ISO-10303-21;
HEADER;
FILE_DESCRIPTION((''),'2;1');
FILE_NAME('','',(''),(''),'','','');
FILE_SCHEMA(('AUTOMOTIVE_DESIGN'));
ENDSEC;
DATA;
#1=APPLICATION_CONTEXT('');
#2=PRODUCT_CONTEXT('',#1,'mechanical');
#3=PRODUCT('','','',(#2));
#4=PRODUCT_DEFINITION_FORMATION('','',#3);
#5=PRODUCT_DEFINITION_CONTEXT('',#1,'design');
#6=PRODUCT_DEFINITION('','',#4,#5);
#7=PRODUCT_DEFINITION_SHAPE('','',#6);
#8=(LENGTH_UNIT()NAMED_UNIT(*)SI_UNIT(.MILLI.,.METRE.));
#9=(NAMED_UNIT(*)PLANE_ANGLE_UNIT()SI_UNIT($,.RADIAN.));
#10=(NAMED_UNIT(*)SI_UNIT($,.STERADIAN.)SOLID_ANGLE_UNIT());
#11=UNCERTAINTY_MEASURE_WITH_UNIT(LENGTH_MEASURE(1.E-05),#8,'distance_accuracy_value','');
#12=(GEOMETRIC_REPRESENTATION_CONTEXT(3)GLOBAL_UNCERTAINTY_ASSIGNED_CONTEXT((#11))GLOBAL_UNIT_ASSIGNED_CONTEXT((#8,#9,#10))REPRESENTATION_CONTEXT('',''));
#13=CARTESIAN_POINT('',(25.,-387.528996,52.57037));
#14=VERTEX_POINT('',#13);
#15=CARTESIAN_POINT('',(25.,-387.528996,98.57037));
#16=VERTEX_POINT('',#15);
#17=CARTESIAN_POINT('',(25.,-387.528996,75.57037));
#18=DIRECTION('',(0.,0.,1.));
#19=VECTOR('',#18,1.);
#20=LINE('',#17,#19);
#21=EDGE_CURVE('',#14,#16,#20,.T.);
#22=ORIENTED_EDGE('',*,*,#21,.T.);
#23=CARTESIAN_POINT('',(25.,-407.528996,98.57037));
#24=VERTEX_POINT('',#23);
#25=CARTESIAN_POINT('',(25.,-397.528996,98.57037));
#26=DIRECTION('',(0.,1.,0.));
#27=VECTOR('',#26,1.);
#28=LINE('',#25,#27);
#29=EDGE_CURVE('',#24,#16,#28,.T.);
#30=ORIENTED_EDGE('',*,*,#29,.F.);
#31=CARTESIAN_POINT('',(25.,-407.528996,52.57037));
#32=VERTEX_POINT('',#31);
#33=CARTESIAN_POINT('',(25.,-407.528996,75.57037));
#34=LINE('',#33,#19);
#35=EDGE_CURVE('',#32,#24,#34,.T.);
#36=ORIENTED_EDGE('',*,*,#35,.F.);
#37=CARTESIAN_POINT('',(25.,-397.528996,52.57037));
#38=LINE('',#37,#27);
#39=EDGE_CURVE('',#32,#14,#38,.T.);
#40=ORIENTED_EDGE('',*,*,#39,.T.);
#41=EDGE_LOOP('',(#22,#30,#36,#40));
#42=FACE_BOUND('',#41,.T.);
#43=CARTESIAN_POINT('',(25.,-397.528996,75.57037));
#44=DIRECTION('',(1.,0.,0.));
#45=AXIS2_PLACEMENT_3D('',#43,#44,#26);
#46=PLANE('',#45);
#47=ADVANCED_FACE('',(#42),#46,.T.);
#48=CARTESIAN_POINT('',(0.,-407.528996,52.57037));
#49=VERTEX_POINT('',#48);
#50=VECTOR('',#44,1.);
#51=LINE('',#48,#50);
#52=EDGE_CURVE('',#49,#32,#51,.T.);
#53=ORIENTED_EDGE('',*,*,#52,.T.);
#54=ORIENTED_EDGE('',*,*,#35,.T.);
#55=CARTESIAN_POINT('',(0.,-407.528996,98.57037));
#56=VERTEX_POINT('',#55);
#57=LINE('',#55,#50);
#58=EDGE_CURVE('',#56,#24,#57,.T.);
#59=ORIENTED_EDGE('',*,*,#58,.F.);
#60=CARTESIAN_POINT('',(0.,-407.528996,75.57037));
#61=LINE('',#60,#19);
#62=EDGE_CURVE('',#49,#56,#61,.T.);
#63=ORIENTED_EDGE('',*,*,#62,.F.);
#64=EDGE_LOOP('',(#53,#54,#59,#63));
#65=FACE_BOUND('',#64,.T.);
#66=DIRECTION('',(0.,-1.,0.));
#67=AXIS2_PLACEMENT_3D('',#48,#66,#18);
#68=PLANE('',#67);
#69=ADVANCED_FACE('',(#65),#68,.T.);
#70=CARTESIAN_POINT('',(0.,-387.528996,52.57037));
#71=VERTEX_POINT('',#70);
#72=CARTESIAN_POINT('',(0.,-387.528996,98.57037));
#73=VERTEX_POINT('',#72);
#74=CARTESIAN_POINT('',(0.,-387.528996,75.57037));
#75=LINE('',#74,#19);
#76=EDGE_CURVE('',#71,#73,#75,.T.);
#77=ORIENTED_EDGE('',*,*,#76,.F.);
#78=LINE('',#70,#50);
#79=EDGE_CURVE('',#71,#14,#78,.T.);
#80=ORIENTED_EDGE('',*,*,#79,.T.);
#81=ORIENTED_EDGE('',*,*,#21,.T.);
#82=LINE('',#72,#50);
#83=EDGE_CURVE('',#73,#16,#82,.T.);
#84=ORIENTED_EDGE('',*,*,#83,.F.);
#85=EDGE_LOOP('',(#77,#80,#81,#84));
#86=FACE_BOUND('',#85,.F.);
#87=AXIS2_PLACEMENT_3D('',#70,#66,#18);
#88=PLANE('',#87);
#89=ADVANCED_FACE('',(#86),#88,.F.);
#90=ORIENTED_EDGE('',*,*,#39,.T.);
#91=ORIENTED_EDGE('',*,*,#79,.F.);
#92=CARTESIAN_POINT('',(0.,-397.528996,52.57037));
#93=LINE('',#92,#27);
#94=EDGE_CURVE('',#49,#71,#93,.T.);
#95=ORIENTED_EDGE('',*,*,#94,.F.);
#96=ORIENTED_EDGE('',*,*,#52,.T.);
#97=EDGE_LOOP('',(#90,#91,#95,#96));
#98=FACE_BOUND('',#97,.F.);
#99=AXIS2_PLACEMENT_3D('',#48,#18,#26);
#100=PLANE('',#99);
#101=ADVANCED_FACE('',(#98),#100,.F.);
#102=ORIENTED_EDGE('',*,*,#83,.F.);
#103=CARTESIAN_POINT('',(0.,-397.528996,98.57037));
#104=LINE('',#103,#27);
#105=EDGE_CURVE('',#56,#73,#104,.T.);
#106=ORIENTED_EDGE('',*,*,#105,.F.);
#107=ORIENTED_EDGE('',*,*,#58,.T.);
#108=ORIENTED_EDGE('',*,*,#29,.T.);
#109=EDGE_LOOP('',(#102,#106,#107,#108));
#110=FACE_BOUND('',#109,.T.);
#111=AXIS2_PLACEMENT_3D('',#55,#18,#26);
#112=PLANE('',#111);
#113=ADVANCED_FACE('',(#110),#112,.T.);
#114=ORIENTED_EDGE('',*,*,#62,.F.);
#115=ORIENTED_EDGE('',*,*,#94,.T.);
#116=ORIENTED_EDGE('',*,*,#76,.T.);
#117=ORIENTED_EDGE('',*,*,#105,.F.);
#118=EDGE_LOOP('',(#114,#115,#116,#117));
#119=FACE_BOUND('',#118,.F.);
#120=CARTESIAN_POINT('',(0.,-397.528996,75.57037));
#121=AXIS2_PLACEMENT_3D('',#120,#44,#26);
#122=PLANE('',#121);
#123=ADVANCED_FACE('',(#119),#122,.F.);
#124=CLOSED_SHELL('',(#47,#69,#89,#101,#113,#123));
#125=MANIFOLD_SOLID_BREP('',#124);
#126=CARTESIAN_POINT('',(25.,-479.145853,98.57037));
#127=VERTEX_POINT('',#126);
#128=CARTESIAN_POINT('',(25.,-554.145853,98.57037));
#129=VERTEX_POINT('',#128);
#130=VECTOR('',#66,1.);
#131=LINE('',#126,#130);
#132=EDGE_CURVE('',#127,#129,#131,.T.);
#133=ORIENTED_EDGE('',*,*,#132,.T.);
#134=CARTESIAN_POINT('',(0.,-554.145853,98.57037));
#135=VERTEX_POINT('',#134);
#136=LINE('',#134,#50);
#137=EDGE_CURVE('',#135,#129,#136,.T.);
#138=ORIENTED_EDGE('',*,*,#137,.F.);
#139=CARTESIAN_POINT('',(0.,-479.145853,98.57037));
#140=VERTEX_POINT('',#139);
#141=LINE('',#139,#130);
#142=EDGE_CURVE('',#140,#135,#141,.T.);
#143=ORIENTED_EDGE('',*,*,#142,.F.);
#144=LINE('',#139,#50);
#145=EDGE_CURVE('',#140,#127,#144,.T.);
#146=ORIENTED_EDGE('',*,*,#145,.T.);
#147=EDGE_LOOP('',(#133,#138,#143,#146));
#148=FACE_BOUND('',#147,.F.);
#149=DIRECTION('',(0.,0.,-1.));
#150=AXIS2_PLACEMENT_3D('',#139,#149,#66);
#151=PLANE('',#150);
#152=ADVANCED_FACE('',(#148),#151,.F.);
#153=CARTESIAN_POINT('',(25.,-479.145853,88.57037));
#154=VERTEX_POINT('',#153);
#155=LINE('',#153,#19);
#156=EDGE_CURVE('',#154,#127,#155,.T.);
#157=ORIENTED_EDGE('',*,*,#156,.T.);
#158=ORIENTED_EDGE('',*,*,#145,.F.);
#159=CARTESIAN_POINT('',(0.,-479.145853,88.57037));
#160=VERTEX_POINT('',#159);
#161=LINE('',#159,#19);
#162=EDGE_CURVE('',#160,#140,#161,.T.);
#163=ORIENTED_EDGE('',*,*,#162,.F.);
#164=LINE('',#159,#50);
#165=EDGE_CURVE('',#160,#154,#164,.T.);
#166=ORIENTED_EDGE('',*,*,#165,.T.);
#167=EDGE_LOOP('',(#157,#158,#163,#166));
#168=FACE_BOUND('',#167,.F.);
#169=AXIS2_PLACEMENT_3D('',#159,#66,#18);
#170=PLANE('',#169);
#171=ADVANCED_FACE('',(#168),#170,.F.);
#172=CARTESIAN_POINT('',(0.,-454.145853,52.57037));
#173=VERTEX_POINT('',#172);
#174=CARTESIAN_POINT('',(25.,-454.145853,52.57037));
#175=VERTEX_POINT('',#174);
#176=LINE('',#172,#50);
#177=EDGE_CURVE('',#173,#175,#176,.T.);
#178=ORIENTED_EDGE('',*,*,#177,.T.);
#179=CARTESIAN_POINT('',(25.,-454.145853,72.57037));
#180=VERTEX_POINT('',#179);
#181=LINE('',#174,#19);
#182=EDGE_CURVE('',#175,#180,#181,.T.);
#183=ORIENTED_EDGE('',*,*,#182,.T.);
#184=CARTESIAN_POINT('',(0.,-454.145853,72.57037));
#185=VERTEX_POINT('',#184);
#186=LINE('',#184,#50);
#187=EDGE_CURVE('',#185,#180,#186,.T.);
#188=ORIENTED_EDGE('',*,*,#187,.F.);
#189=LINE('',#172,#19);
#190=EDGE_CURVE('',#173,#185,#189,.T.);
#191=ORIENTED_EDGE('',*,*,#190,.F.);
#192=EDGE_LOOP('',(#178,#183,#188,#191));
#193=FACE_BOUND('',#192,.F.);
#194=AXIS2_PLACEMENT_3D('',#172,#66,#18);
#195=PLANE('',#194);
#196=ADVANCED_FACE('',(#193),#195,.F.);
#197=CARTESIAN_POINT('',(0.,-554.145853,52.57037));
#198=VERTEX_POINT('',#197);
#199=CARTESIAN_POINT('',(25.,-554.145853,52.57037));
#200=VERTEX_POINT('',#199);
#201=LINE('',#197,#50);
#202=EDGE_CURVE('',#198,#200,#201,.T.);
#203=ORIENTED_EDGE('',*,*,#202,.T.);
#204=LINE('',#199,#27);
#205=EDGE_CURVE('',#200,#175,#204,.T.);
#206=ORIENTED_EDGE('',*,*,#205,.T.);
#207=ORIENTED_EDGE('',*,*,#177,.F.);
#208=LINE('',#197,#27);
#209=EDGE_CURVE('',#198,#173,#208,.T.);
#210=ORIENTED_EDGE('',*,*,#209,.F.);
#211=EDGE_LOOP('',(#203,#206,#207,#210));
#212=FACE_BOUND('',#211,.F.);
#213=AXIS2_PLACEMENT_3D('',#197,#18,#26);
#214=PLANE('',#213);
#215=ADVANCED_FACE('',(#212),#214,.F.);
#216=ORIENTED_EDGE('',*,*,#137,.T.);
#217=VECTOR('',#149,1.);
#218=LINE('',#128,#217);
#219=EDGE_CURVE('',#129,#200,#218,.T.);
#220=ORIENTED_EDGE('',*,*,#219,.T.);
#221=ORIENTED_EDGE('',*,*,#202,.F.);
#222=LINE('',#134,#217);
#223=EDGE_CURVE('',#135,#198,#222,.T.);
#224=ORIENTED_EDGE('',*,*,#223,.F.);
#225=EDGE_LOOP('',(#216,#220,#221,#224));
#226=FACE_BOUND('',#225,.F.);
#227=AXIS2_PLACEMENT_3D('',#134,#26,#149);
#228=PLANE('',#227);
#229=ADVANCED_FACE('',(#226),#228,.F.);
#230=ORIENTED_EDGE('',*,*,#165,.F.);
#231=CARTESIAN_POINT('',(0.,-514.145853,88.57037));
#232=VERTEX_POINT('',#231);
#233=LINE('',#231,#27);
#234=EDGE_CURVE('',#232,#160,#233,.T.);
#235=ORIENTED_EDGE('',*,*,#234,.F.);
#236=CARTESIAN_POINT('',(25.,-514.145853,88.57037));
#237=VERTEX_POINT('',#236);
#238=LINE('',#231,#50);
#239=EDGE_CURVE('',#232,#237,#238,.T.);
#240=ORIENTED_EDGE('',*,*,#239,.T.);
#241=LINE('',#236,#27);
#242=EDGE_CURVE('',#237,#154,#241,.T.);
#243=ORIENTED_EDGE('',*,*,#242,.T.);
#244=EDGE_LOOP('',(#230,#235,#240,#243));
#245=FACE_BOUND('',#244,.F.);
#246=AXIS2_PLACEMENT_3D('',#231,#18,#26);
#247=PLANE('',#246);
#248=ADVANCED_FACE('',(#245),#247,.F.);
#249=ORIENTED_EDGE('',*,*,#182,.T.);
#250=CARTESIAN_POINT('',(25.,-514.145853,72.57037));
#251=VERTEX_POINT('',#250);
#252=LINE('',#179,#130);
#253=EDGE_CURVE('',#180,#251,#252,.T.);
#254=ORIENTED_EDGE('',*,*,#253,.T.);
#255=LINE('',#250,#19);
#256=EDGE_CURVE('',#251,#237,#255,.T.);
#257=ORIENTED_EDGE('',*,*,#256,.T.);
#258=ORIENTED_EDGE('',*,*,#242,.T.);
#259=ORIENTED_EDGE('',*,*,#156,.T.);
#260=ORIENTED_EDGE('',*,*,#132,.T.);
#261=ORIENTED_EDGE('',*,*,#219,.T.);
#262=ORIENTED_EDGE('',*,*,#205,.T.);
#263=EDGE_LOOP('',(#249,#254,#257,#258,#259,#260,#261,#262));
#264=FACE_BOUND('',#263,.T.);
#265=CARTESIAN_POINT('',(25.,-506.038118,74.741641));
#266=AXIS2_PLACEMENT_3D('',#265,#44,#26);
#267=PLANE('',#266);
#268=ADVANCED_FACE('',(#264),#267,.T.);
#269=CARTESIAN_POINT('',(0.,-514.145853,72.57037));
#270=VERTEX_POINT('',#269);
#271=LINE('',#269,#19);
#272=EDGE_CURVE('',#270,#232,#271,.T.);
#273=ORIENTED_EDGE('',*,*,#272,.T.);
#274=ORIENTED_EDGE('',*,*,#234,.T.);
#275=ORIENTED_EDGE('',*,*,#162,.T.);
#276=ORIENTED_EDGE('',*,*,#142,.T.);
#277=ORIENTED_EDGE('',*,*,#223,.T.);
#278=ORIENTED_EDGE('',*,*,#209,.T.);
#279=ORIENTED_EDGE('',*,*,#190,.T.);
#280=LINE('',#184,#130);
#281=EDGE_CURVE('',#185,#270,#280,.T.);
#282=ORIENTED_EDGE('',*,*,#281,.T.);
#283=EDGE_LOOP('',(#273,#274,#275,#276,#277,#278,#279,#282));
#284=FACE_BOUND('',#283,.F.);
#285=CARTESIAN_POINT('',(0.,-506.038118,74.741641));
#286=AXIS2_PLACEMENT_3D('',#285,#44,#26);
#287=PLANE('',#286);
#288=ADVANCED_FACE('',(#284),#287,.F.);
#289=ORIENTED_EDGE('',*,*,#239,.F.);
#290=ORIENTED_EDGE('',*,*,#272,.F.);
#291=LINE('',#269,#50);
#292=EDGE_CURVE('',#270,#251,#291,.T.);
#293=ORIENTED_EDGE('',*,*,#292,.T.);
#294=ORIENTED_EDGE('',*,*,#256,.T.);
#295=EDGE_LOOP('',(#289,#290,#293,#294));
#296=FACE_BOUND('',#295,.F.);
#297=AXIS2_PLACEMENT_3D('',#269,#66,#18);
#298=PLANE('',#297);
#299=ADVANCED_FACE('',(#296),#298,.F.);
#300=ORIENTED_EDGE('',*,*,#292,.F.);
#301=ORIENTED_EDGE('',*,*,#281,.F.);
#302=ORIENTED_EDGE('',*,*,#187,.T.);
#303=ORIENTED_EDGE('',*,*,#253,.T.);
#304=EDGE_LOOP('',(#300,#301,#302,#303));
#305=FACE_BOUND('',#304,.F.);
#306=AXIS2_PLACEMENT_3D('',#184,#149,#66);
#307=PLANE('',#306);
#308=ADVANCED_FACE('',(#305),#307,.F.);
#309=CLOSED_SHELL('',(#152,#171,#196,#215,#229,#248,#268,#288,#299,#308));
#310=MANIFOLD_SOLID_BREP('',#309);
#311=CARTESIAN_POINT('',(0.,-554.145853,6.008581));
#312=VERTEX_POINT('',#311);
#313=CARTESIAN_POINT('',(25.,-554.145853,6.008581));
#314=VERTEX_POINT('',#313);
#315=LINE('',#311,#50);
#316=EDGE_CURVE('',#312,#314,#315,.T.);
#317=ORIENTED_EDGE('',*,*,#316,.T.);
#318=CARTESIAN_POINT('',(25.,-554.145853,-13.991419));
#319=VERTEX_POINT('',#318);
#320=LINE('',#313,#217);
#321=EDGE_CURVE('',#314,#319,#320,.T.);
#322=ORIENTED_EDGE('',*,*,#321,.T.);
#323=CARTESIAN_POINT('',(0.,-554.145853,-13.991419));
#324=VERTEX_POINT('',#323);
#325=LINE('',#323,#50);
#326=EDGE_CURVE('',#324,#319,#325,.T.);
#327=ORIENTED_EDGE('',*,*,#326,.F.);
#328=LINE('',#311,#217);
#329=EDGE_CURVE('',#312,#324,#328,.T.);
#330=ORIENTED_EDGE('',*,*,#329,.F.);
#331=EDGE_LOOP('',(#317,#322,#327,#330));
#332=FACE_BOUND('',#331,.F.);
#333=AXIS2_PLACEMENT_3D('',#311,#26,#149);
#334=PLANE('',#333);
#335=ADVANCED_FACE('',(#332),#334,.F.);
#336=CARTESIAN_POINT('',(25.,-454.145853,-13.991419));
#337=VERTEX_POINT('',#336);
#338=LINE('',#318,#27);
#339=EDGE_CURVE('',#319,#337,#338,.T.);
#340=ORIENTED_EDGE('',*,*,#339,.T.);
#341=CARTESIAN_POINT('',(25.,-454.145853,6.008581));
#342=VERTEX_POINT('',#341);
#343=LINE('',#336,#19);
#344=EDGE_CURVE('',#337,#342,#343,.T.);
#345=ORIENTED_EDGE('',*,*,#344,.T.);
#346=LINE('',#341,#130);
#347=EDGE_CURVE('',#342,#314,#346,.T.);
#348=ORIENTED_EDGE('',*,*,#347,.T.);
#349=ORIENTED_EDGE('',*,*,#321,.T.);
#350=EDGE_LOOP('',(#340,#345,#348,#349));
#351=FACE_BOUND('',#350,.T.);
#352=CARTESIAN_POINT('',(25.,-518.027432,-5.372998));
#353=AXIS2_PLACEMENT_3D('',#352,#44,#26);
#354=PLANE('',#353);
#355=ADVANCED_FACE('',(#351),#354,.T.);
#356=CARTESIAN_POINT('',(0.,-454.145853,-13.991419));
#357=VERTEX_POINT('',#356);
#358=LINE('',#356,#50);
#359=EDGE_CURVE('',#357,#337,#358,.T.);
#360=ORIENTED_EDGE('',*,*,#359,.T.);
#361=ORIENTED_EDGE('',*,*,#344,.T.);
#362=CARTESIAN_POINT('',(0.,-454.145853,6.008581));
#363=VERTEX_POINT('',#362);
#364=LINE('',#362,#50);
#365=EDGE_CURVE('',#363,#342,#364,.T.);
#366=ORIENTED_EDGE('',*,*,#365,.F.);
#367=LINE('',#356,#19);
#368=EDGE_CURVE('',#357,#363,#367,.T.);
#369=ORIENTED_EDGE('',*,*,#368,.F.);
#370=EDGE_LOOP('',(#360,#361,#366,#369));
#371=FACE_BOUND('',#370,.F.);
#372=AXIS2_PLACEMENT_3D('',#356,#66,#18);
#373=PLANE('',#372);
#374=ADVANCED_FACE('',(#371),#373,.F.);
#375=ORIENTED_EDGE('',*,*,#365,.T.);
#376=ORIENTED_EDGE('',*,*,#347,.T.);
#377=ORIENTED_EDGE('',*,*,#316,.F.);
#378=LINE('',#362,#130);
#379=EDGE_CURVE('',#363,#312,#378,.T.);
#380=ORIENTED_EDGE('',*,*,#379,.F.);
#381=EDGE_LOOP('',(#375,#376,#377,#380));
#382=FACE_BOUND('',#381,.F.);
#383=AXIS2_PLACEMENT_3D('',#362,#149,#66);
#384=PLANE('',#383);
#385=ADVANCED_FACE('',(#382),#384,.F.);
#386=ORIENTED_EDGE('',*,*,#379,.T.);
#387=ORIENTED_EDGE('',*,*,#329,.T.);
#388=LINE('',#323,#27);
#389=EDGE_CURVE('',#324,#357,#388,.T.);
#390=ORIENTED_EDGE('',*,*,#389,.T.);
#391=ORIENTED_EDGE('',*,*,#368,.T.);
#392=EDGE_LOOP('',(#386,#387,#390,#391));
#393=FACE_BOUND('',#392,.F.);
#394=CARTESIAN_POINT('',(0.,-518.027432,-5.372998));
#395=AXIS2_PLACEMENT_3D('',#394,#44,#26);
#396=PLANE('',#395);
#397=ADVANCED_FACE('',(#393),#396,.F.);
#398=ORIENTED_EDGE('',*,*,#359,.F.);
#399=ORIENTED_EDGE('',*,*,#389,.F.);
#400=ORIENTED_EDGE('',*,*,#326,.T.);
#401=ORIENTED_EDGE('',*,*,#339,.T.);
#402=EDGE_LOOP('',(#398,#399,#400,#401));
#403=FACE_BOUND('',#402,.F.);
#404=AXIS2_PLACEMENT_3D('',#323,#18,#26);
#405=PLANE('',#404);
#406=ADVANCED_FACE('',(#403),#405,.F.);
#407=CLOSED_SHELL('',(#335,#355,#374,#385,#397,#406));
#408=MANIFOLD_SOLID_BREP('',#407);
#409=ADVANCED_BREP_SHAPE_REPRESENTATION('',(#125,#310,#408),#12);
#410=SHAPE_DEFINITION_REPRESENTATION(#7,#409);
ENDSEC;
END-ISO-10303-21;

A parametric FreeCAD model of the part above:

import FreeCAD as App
import Part
import Sketcher


def add_polygon(sketch, points):
    """Adds a closed chain of lines whose ends are joined by coincident constraints."""
    first, n = sketch.GeometryCount, len(points)
    for a, b in zip(points, points[1:] + points[:1]):
        sketch.addGeometry(Part.LineSegment(App.Vector(*a, 0), App.Vector(*b, 0)), False)
    for i in range(n):
        sketch.addConstraint(Sketcher.Constraint("Coincident", first + i, 2, first + (i + 1) % n, 1))

doc = App.newDocument("Part")
params = doc.addObject("Spreadsheet::Sheet", "Params")
for row, (alias, value) in enumerate([
    ("sketch1_width", "100 mm"),
    ("sketch1_width2", "60 mm"),
    ("sketch1_width3", "35 mm"),
    ("sketch1_width4", "20 mm"),
    ("sketch1_height", "46 mm"),
    ("pad1_length", "25 mm"),
], start=1):
    params.set(f"A{row}", alias)
    params.set(f"B{row}", "=" + value)
    params.setAlias(f"B{row}", alias)

body = doc.addObject("PartDesign::Body", "Body")
body.AllowCompound = True

sketch1 = doc.addObject("Sketcher::SketchObject", "Sketch")
body.addObject(sketch1)
sketch1.AttachmentSupport = (doc.YZ_Plane, [""])
sketch1.MapMode = "FlatFace"
add_polygon(sketch1, [(-554, 99), (-554, 53), (-454, 53), (-454, 73), (-514, 73), (-514, 89), (-479, 89), (-479, 99)])
add_polygon(sketch1, [(-554, 6), (-554, -14), (-454, -14), (-454, 6)])
add_polygon(sketch1, [(-408, 99), (-408, 53), (-388, 53), (-388, 99)])
sketch1.addConstraint([
    Sketcher.Constraint("Vertical", 0),
    Sketcher.Constraint("Horizontal", 1),
    Sketcher.Constraint("Vertical", 2),
    Sketcher.Constraint("Horizontal", 3),
    Sketcher.Constraint("Vertical", 4),
    Sketcher.Constraint("Horizontal", 5),
    Sketcher.Constraint("Vertical", 6),
    Sketcher.Constraint("Horizontal", 7),
    Sketcher.Constraint("Vertical", 8),
    Sketcher.Constraint("Horizontal", 9),
    Sketcher.Constraint("Vertical", 10),
    Sketcher.Constraint("Horizontal", 11),
    Sketcher.Constraint("Vertical", 12),
    Sketcher.Constraint("Horizontal", 13),
    Sketcher.Constraint("Vertical", 14),
    Sketcher.Constraint("Horizontal", 15),
    Sketcher.Constraint("Horizontal", 1, 2, 12, 2),
    Sketcher.Constraint("Horizontal", 7, 2, 14, 2),
    Sketcher.Constraint("Vertical", 7, 2, 8, 2),
    Sketcher.Constraint("Vertical", 2, 2, 9, 2),
    Sketcher.Constraint("Equal", 15, 2),
    Sketcher.Constraint("Equal", 2, 8),
    Sketcher.Constraint("DistanceX", 1, 1, 1, 2, 100.0),
    Sketcher.Constraint("DistanceX", 3, 2, 3, 1, 60.0),
    Sketcher.Constraint("DistanceX", 5, 1, 5, 2, 35.0),
    Sketcher.Constraint("DistanceX", 13, 1, 13, 2, 20.0),
    Sketcher.Constraint("DistanceY", 0, 2, 0, 1, 46.0),
    Sketcher.Constraint("DistanceY", 4, 1, 4, 2, 16.0),
    Sketcher.Constraint("DistanceY", -1, 1, 0, 2, 52.57037),
    Sketcher.Constraint("DistanceY", 8, 2, -1, 1, 13.991419),
    Sketcher.Constraint("DistanceX", 0, 2, -1, 1, 554.145853),
    Sketcher.Constraint("DistanceX", 12, 2, -1, 1, 407.528996),
])
sketch1.setExpression("Constraints[38]", "Params.sketch1_width")
sketch1.setExpression("Constraints[39]", "Params.sketch1_width2")
sketch1.setExpression("Constraints[40]", "Params.sketch1_width3")
sketch1.setExpression("Constraints[41]", "Params.sketch1_width4")
sketch1.setExpression("Constraints[42]", "Params.sketch1_height")
pad1 = doc.addObject("PartDesign::Pad", "Pad")
body.addObject(pad1)
pad1.Profile = sketch1
pad1.setExpression("Length", "Params.pad1_length")

doc.recompute()
